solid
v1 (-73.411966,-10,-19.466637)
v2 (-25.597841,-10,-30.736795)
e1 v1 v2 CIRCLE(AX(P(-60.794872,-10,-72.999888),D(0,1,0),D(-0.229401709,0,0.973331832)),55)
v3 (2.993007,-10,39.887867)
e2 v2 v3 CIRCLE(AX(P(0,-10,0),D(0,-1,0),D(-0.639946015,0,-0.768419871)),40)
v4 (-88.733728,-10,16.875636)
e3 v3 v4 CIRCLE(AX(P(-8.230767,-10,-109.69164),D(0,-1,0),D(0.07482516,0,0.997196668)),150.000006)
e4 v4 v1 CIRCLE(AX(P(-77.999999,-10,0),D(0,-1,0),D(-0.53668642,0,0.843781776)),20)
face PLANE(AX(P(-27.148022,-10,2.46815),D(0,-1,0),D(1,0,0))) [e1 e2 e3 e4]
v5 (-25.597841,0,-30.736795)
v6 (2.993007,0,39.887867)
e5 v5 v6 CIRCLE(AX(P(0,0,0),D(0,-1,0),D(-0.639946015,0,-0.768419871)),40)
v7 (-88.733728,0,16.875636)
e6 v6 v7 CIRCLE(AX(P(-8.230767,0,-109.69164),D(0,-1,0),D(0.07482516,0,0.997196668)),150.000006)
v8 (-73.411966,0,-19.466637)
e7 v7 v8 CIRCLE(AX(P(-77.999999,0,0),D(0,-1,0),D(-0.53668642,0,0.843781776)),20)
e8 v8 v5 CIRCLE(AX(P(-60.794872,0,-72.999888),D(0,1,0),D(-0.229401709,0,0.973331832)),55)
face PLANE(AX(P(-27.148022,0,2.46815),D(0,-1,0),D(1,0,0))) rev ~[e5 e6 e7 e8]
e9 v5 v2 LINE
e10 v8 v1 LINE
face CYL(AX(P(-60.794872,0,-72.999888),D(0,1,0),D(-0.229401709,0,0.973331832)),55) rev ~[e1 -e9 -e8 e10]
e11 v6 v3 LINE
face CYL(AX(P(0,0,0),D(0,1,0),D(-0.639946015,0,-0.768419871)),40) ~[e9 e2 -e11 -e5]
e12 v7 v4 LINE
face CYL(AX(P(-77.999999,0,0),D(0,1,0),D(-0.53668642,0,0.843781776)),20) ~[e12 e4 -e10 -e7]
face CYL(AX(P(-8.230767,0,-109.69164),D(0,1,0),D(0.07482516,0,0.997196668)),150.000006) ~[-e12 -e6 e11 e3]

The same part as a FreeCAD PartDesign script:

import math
import FreeCAD as App
import Part
import Sketcher

doc = App.newDocument("Part")
body = doc.addObject("PartDesign::Body", "Body")

sketch1 = body.newObject("Sketcher::SketchObject", "Sketch")
sketch1.AttachmentSupport = (doc.getObject("XZ_Plane"), [""])
sketch1.MapMode = "FlatFace"
sketch1.addGeometry([
    Part.ArcOfCircle(Part.Circle(App.Vector(-61, -73, 0), App.Vector(0, 0, 1), 55), math.radians(50), math.radians(103)),
    Part.ArcOfCircle(Part.Circle(App.Vector(0, 0, 0), App.Vector(0, 0, 1), 40), math.radians(-130), math.radians(86)),
    Part.ArcOfCircle(Part.Circle(App.Vector(-8, -110, 0), App.Vector(0, 0, 1), 150), math.radians(86), math.radians(122)),
    Part.ArcOfCircle(Part.Circle(App.Vector(-78, 0, 0), App.Vector(0, 0, 1), 20), math.radians(122), math.radians(283)),
], False)
sketch1.addConstraint([
    Sketcher.Constraint("Tangent", 0, 1, 1, 1),
    Sketcher.Constraint("Tangent", 1, 2, 2, 1),
    Sketcher.Constraint("Tangent", 2, 2, 3, 1),
    Sketcher.Constraint("Tangent", 3, 2, 0, 2),
    Sketcher.Constraint("Coincident", 1, 3, -1, 1),
    Sketcher.Constraint("PointOnObject", 3, 3, -1),
    Sketcher.Constraint("Radius", 0, 55.0),
    Sketcher.Constraint("Radius", 1, 40.0),
    Sketcher.Constraint("Radius", 3, 20.0),
    Sketcher.Constraint("DistanceX", 3, 3, -1, 1, 77.999999),
    Sketcher.Constraint("Radius", 2, 150.000006),
])
pad1 = body.newObject("PartDesign::Pad", "Pad")
pad1.Profile = sketch1
pad1.Length = 10

doc.recompute()
